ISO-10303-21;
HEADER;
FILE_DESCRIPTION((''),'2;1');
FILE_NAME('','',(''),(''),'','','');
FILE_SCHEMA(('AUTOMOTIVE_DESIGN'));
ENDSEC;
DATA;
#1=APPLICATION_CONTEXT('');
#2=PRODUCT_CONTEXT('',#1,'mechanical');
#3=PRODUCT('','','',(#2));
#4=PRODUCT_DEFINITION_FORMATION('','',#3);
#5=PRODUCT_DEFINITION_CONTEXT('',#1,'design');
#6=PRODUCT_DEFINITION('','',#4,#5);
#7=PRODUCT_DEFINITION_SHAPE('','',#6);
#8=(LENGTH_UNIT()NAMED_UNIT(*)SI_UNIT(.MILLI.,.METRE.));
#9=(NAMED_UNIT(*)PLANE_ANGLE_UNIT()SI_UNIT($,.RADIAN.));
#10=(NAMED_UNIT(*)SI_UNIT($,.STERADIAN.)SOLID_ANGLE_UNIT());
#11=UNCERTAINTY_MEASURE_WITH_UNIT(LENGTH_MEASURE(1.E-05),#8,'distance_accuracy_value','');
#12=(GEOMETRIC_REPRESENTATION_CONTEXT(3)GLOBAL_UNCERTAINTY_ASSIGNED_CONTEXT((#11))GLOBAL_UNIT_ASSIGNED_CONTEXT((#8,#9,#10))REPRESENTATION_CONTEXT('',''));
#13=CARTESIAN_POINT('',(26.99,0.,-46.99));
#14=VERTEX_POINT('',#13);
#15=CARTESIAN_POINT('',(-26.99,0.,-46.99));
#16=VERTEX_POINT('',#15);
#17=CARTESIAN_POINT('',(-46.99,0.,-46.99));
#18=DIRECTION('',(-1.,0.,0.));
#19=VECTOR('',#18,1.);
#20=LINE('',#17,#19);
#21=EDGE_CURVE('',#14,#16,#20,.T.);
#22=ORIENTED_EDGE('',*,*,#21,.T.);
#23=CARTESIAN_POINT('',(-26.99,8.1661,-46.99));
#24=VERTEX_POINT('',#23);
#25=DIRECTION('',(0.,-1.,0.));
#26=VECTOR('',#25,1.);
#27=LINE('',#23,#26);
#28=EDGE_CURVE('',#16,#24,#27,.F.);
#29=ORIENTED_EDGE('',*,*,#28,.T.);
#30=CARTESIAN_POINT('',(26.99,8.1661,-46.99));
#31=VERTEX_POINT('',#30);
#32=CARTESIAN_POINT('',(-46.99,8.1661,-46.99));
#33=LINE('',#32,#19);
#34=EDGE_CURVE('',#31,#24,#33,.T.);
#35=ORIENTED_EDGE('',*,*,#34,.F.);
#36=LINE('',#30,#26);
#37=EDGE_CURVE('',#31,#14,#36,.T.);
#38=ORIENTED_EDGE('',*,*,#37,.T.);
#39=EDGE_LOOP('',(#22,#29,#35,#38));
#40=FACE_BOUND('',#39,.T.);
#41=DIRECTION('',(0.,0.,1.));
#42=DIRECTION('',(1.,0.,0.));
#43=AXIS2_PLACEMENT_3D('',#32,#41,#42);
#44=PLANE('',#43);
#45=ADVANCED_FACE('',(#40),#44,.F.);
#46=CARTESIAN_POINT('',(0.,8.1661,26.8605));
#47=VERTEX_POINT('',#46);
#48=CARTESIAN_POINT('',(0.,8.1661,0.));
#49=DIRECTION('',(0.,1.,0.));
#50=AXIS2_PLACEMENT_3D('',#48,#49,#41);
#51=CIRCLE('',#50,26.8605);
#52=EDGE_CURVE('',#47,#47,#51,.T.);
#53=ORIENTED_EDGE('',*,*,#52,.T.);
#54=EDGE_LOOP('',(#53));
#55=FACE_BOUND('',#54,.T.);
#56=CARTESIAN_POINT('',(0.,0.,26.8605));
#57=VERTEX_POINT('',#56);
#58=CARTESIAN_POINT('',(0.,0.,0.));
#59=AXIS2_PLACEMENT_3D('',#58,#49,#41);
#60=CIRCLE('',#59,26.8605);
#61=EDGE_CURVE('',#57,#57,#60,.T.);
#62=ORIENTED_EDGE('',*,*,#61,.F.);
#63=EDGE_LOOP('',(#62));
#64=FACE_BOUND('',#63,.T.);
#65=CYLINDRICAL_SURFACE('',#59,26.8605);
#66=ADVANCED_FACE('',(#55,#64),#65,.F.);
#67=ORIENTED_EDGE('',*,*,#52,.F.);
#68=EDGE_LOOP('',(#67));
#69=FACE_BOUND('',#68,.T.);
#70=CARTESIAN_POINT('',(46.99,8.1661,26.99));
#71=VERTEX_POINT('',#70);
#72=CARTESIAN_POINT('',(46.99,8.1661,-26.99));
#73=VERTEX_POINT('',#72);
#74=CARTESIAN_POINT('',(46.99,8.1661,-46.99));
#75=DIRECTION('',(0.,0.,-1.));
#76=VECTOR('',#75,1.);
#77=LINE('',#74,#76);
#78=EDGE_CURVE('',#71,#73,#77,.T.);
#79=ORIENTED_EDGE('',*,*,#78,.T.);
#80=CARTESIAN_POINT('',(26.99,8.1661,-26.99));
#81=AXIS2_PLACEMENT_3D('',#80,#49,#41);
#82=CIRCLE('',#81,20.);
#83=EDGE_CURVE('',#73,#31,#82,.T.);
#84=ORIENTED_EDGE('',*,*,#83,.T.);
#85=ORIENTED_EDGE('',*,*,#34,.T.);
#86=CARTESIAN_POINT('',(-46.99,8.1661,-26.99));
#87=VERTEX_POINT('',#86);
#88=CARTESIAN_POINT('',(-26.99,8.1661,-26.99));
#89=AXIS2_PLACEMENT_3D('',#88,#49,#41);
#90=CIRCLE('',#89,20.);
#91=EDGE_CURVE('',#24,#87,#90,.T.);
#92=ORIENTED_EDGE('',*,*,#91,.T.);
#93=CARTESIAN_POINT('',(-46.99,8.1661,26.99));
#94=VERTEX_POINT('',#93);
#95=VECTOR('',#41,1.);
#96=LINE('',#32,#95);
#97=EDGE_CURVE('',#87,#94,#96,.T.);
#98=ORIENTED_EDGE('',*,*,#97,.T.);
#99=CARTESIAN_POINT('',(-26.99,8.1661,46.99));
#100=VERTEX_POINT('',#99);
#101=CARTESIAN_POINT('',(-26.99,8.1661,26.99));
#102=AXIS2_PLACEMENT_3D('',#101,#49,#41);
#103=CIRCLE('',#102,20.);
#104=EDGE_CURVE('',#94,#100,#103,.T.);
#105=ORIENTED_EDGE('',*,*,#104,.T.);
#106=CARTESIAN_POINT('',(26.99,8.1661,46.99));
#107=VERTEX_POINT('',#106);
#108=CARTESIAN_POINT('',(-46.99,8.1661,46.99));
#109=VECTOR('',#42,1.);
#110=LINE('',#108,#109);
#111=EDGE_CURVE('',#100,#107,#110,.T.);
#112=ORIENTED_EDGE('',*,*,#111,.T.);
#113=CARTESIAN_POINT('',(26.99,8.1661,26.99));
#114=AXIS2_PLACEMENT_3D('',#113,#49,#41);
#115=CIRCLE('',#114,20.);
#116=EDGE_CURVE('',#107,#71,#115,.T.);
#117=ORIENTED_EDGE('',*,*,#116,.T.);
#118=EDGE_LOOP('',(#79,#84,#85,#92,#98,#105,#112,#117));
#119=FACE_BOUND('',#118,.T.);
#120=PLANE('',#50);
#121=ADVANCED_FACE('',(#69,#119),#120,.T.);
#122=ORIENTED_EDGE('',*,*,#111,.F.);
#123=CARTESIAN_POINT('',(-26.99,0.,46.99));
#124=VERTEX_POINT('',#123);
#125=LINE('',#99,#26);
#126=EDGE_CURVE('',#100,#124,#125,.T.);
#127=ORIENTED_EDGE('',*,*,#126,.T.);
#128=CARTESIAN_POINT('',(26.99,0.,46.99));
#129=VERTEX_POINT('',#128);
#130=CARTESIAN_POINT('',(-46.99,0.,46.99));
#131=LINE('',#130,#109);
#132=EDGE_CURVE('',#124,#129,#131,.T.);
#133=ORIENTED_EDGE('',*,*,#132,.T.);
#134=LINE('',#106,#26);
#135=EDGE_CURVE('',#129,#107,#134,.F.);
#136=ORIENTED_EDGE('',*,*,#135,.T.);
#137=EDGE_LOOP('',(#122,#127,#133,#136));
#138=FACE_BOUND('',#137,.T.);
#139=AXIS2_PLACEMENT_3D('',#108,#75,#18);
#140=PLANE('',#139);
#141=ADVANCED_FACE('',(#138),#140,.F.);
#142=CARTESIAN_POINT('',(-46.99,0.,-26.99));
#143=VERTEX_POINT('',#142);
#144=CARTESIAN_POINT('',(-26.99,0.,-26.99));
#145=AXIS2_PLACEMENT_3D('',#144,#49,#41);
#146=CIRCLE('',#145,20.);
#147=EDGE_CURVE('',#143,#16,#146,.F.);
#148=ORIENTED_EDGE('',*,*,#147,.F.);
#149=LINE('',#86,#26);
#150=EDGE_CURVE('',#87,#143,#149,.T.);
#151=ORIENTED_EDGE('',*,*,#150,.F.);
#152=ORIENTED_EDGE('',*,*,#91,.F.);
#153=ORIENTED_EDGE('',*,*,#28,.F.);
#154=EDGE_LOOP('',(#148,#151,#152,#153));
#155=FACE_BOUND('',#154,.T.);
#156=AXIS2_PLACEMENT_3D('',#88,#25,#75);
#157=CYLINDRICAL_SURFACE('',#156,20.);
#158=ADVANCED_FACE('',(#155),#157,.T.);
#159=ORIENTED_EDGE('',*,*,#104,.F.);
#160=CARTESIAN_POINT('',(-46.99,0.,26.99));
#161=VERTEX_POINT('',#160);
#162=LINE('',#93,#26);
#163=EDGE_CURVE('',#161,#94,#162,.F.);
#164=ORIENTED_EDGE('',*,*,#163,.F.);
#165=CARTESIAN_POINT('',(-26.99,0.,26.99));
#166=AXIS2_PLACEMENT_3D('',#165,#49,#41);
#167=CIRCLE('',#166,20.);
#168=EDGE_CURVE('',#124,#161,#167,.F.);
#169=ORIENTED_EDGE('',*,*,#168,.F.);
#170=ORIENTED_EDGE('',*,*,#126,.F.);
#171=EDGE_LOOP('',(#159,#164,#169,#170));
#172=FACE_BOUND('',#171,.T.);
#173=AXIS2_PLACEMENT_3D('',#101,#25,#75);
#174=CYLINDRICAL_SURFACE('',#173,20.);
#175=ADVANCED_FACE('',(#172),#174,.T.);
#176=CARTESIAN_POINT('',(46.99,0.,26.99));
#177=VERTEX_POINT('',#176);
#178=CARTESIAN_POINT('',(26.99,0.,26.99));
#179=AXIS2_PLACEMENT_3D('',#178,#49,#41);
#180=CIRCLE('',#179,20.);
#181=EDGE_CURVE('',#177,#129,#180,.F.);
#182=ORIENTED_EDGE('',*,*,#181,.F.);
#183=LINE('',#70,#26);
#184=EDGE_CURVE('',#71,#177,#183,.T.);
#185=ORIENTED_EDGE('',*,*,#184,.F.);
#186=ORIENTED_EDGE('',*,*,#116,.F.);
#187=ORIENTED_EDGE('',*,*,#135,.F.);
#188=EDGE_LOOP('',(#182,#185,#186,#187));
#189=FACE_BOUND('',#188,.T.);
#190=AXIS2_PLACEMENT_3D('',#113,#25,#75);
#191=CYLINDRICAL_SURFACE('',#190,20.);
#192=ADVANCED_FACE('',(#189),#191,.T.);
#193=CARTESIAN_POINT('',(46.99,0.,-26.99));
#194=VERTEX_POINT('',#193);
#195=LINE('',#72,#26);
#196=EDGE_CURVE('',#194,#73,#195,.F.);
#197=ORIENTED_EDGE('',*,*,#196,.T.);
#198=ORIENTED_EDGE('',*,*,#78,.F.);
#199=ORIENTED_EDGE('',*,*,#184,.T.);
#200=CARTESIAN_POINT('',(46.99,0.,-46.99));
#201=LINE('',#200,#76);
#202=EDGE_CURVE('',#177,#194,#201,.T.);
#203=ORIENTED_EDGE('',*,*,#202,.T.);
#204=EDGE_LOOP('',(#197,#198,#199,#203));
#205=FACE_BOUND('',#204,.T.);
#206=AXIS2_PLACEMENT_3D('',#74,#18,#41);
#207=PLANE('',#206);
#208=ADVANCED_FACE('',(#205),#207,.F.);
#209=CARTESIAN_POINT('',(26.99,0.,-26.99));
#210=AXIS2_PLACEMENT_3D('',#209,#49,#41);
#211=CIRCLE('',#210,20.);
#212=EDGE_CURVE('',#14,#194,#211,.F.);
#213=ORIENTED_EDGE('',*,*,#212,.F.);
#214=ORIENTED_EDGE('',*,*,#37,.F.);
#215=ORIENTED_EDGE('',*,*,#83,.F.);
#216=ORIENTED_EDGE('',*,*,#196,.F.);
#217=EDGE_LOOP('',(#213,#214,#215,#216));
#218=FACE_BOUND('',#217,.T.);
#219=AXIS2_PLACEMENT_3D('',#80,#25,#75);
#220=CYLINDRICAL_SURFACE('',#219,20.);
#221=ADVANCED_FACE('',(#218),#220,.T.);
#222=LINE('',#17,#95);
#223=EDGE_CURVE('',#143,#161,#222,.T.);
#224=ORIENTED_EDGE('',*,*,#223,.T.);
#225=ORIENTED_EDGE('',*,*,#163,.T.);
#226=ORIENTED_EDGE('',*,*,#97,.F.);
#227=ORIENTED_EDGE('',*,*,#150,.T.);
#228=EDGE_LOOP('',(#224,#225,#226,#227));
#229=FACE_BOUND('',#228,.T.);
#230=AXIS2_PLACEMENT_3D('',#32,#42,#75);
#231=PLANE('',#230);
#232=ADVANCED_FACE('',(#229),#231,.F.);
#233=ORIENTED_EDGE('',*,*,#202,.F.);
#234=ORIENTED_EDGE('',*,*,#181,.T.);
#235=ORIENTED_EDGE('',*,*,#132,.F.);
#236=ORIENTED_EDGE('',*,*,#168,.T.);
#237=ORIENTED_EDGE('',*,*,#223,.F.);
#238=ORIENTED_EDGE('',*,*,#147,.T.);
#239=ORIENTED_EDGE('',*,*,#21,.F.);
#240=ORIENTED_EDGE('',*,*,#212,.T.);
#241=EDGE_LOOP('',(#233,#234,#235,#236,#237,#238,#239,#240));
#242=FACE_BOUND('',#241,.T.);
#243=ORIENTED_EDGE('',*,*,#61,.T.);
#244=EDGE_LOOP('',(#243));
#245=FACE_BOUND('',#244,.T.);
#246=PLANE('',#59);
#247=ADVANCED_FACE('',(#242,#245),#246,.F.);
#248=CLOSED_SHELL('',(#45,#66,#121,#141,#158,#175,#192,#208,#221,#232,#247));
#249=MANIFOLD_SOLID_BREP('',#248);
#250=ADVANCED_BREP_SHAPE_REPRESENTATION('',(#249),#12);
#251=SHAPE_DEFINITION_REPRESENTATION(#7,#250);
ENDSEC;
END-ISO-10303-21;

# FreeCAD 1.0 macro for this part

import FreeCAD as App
import Part
import Sketcher
Q = App.Units.Quantity


def edges_at(feature, points):
    """Names of the edges that pass closest to the given points."""
    edges = feature.Shape.Edges
    near = lambda p: min(range(len(edges)), key=lambda i: edges[i].distToShape(Part.Vertex(*p))[0])
    return sorted({f"Edge{near(p) + 1}" for p in points})

doc = App.newDocument("Part")
params = doc.addObject("Spreadsheet::Sheet", "Params")
for row, (alias, value) in enumerate([
    ("sketch1_width", "3.7 in"),
    ("pad1_length", "0.3215 in"),
    ("sketch2_diameter", "2.115 in"),
    ("pocket1_length", "0.3215 in"),
    ("fillet_radius", "20 mm"),
], start=1):
    params.set(f"A{row}", alias)
    params.set(f"B{row}", "=" + value)
    params.setAlias(f"B{row}", alias)

body = doc.addObject("PartDesign::Body", "Body")

sketch1 = doc.addObject("Sketcher::SketchObject", "Sketch")
body.addObject(sketch1)
sketch1.AttachmentSupport = (doc.XZ_Plane, [""])
sketch1.MapMode = "FlatFace"
sketch1.addGeometry(Part.LineSegment(App.Vector(-46.99, -46.99, 0), App.Vector(-46.99, 46.99, 0)), False)
sketch1.addGeometry(Part.LineSegment(App.Vector(-46.99, 46.99, 0), App.Vector(46.99, 46.99, 0)), False)
sketch1.addGeometry(Part.LineSegment(App.Vector(46.99, 46.99, 0), App.Vector(46.99, -46.99, 0)), False)
sketch1.addGeometry(Part.LineSegment(App.Vector(46.99, -46.99, 0), App.Vector(-46.99, -46.99, 0)), False)
sketch1.addConstraint(Sketcher.Constraint("Coincident", 0, 2, 1, 1))
sketch1.addConstraint(Sketcher.Constraint("Coincident", 1, 2, 2, 1))
sketch1.addConstraint(Sketcher.Constraint("Coincident", 2, 2, 3, 1))
sketch1.addConstraint(Sketcher.Constraint("Coincident", 3, 2, 0, 1))
sketch1.addConstraint(Sketcher.Constraint("Vertical", 0))
sketch1.addConstraint(Sketcher.Constraint("Horizontal", 1))
sketch1.addConstraint(Sketcher.Constraint("Vertical", 2))
sketch1.addConstraint(Sketcher.Constraint("Horizontal", 3))
sketch1.addConstraint(Sketcher.Constraint("Symmetric", 0, 2, 2, 2, -1, 1))
sketch1.addConstraint(Sketcher.Constraint("Equal", 3, 0))
sketch1.addConstraint(Sketcher.Constraint("DistanceX", 1, 1, 1, 2, Q("3.7 in")))
sketch1.setExpression("Constraints[10]", "Params.sketch1_width")
pad1 = doc.addObject("PartDesign::Pad", "Pad")
body.addObject(pad1)
pad1.Profile = sketch1
pad1.setExpression("Length", "Params.pad1_length")
pad1.Reversed = True

sketch2 = doc.addObject("Sketcher::SketchObject", "Sketch001")
body.addObject(sketch2)
sketch2.AttachmentSupport = (doc.XZ_Plane, [""])
sketch2.MapMode = "FlatFace"
sketch2.AttachmentOffset = App.Placement(App.Vector(0, 0, -0.3215 * 25.4), App.Rotation())
sketch2.addGeometry(Part.Circle(App.Vector(0, 0, 0), App.Vector(0, 0, 1), 26.8605), False)
sketch2.addConstraint(Sketcher.Constraint("Coincident", 0, 3, -1, 1))
sketch2.addConstraint(Sketcher.Constraint("Diameter", 0, Q("2.115 in")))
sketch2.setExpression("Constraints[1]", "Params.sketch2_diameter")
pocket1 = doc.addObject("PartDesign::Pocket", "Pocket")
body.addObject(pocket1)
pocket1.Profile = sketch2
pocket1.setExpression("Length", "Params.pocket1_length")
pocket1.Reversed = True
doc.recompute()

fillet = doc.addObject("PartDesign::Fillet", "Fillet")
body.addObject(fillet)
fillet.Base = (pocket1, edges_at(pocket1, [
    (46.99, 4.083, 46.99),
    (-46.99, 4.083, 46.99),
    (-46.99, 4.083, -46.99),
    (46.99, 4.083, -46.99),
]))
fillet.setExpression("Radius", "Params.fillet_radius")

doc.recompute()
